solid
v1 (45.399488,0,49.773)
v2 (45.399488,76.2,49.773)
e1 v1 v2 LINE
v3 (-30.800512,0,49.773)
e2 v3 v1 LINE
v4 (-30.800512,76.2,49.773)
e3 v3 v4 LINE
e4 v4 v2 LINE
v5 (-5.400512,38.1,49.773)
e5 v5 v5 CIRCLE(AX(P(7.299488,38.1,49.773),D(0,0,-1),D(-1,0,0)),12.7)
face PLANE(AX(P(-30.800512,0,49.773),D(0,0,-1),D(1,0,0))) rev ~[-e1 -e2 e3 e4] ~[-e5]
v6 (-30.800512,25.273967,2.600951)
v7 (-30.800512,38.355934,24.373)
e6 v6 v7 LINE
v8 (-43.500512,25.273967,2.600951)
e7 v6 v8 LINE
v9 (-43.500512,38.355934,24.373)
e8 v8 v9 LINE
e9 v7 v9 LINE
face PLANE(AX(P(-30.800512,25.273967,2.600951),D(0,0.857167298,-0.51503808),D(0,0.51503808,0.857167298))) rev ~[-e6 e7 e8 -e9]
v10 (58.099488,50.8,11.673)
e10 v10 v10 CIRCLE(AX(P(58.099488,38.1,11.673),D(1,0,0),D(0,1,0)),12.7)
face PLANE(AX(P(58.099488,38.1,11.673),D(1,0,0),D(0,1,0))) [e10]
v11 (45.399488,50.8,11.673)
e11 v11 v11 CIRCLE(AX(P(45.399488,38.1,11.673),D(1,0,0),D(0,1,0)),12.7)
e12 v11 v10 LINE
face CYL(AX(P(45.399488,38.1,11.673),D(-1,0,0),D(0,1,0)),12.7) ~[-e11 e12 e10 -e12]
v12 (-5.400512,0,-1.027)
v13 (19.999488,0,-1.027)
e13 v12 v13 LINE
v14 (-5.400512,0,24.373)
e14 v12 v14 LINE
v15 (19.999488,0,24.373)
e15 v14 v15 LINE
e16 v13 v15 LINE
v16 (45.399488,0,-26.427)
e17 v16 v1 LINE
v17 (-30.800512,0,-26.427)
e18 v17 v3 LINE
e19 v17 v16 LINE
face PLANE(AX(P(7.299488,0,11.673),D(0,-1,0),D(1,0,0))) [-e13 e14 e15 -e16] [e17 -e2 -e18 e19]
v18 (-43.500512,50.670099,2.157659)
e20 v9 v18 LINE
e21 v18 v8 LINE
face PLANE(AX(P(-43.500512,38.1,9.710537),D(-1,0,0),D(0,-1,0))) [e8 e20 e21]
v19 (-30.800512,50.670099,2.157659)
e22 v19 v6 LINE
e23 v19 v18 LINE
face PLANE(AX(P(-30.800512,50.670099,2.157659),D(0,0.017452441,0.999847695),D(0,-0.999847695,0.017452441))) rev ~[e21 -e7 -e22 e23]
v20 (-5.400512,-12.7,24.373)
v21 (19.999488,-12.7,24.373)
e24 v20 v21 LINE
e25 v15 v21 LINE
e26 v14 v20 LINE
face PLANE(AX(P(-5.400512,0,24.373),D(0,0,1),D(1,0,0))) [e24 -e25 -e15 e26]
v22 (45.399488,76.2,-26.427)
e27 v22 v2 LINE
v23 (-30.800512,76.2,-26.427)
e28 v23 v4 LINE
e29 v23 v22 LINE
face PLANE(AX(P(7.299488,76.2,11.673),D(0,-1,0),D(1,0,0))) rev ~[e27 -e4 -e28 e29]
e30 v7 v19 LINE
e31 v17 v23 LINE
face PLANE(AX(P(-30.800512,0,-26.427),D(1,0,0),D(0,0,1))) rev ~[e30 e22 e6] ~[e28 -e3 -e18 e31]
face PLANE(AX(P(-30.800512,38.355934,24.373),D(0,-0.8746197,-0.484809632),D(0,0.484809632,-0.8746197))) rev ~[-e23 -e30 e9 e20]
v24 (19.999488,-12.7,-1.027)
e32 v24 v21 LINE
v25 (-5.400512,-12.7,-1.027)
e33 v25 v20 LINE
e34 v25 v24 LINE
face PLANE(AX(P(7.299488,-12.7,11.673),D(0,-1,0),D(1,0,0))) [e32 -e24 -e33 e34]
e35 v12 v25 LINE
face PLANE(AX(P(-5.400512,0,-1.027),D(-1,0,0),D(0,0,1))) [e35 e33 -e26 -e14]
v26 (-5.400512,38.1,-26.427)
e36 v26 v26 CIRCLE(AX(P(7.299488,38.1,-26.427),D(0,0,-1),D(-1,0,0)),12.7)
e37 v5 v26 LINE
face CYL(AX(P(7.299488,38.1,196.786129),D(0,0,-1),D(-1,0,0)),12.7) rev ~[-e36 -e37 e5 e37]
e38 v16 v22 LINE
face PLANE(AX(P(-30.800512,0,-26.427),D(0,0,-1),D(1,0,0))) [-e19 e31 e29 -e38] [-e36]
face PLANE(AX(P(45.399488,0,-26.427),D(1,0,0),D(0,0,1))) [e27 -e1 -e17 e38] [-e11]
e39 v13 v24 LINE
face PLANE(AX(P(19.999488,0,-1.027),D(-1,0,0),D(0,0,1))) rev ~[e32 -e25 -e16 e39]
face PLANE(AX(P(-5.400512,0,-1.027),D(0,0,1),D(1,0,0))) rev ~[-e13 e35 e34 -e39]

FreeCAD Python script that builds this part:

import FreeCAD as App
import Part
import Sketcher

V = App.Vector
Q = App.Units.Quantity

doc = App.newDocument("Part")
body = doc.addObject("PartDesign::Body", "Body")

# Sketch on XZ plane
sketch1 = body.newObject("Sketcher::SketchObject", "Sketch")
sketch1.AttachmentSupport = (doc.getObject("XZ_Plane"), [""])
sketch1.MapMode = "FlatFace"
sketch1.addGeometry([
    Part.LineSegment(V(-30.800512, 49.773, 0), V(-30.800512, -26.427, 0)),
    Part.LineSegment(V(-30.800512, -26.427, 0), V(45.399488, -26.427, 0)),
    Part.LineSegment(V(45.399488, -26.427, 0), V(45.399488, 49.773, 0)),
    Part.LineSegment(V(45.399488, 49.773, 0), V(-30.800512, 49.773, 0)),
], False)
sketch1.addConstraint([
    Sketcher.Constraint("Coincident", 0, 2, 1, 1),
    Sketcher.Constraint("Coincident", 1, 2, 2, 1),
    Sketcher.Constraint("Coincident", 2, 2, 3, 1),
    Sketcher.Constraint("Coincident", 3, 2, 0, 1),
    Sketcher.Constraint("Vertical", 0),
    Sketcher.Constraint("Horizontal", 1),
    Sketcher.Constraint("Vertical", 2),
    Sketcher.Constraint("Horizontal", 3),
    Sketcher.Constraint("Equal", 3, 0),
    Sketcher.Constraint("DistanceX", 1, 1, 1, 2, Q("3 in")),
    Sketcher.Constraint("DistanceY", 0, 2, -1, 1, Q("26.427 mm")),
    Sketcher.Constraint("DistanceX", 0, 2, -1, 1, Q("30.800512 mm")),
])
pad1 = body.newObject("PartDesign::Pad", "Pad")
pad1.Profile = sketch1
pad1.Length = Q("3 in")
pad1.Reversed = True

# Sketch on XZ plane
sketch2 = body.newObject("Sketcher::SketchObject", "Sketch001")
sketch2.AttachmentSupport = (doc.getObject("XZ_Plane"), [""])
sketch2.MapMode = "FlatFace"
sketch2.addGeometry([
    Part.LineSegment(V(-5.400512, 24.373, 0), V(-5.400512, -1.027, 0)),
    Part.LineSegment(V(-5.400512, -1.027, 0), V(19.999488, -1.027, 0)),
    Part.LineSegment(V(19.999488, -1.027, 0), V(19.999488, 24.373, 0)),
    Part.LineSegment(V(19.999488, 24.373, 0), V(-5.400512, 24.373, 0)),
], False)
sketch2.addConstraint([
    Sketcher.Constraint("Coincident", 0, 2, 1, 1),
    Sketcher.Constraint("Coincident", 1, 2, 2, 1),
    Sketcher.Constraint("Coincident", 2, 2, 3, 1),
    Sketcher.Constraint("Coincident", 3, 2, 0, 1),
    Sketcher.Constraint("Vertical", 0),
    Sketcher.Constraint("Horizontal", 1),
    Sketcher.Constraint("Vertical", 2),
    Sketcher.Constraint("Horizontal", 3),
    Sketcher.Constraint("Equal", 3, 0),
    Sketcher.Constraint("DistanceX", 1, 1, 1, 2, Q("1 in")),
    Sketcher.Constraint("DistanceY", 0, 2, -1, 1, Q("1.027 mm")),
    Sketcher.Constraint("DistanceX", 0, 2, -1, 1, Q("5.400512 mm")),
])
pad2 = body.newObject("PartDesign::Pad", "Pad001")
pad2.Profile = sketch2
pad2.Length = Q("0.5 in")

# Sketch on YZ plane
sketch3 = body.newObject("Sketcher::SketchObject", "Sketch002")
sketch3.AttachmentSupport = (doc.getObject("YZ_Plane"), [""])
sketch3.MapMode = "FlatFace"
sketch3.AttachmentOffset = App.Placement(V(0, 0, 45.399488), App.Rotation())
sketch3.addGeometry(Part.Circle(V(38.1, 11.673, 0), V(0, 0, 1), 12.7), False)
sketch3.addConstraint([
    Sketcher.Constraint("Diameter", 0, Q("1 in")),
    Sketcher.Constraint("DistanceX", -1, 1, 0, 3, Q("1.5 in")),
    Sketcher.Constraint("DistanceY", -1, 1, 0, 3, Q("11.673 mm")),
])
pad3 = body.newObject("PartDesign::Pad", "Pad002")
pad3.Profile = sketch3
pad3.Length = Q("0.5 in")

# Sketch on XY plane
sketch4 = body.newObject("Sketcher::SketchObject", "Sketch003")
sketch4.AttachmentSupport = (doc.getObject("XY_Plane"), [""])
sketch4.MapMode = "FlatFace"
sketch4.AttachmentOffset = App.Placement(V(0, 0, 49.773), App.Rotation())
sketch4.addGeometry(Part.Circle(V(7.299488, 38.1, 0), V(0, 0, 1), 12.7), False)
sketch4.addConstraint([
    Sketcher.Constraint("Diameter", 0, Q("1 in")),
    Sketcher.Constraint("DistanceY", -1, 1, 0, 3, Q("1.5 in")),
    Sketcher.Constraint("DistanceX", -1, 1, 0, 3, Q("7.299488 mm")),
])
doc.recompute()
hole = body.newObject("PartDesign::Hole", "Hole")
hole.Profile = sketch4
hole.ThreadType = "None"
hole.Diameter = Q("1 in")
hole.DepthType = "ThroughAll"

# Sketch on YZ plane
sketch5 = body.newObject("Sketcher::SketchObject", "Sketch004")
sketch5.AttachmentSupport = (doc.getObject("YZ_Plane"), [""])
sketch5.MapMode = "FlatFace"
sketch5.AttachmentOffset = App.Placement(V(0, 0, -30.800512), App.Rotation())
sketch5.addGeometry([
    Part.LineSegment(V(25.273967, 2.600951, 0), V(38.355934, 24.373, 0)),
    Part.LineSegment(V(38.355934, 24.373, 0), V(50.670099, 2.157659, 0)),
    Part.LineSegment(V(50.670099, 2.157659, 0), V(25.273967, 2.600951, 0)),
], False)
sketch5.addConstraint([
    Sketcher.Constraint("Coincident", 0, 2, 1, 1),
    Sketcher.Constraint("Coincident", 1, 2, 2, 1),
    Sketcher.Constraint("Coincident", 2, 2, 0, 1),
    Sketcher.Constraint("Equal", 0, 1),
    Sketcher.Constraint("Equal", 1, 2),
    Sketcher.Constraint("Distance", 0, Q("1 in")),
    Sketcher.Constraint("Angle", 0, Q("59 deg")),
    Sketcher.Constraint("DistanceY", -1, 1, 0, 2, Q("24.373 mm")),
    Sketcher.Constraint("DistanceX", -1, 1, 1, 2, Q("50.670099 mm")),
])
pad4 = body.newObject("PartDesign::Pad", "Pad003")
pad4.Profile = sketch5
pad4.Length = Q("0.5 in")
pad4.Reversed = True

doc.recompute()
